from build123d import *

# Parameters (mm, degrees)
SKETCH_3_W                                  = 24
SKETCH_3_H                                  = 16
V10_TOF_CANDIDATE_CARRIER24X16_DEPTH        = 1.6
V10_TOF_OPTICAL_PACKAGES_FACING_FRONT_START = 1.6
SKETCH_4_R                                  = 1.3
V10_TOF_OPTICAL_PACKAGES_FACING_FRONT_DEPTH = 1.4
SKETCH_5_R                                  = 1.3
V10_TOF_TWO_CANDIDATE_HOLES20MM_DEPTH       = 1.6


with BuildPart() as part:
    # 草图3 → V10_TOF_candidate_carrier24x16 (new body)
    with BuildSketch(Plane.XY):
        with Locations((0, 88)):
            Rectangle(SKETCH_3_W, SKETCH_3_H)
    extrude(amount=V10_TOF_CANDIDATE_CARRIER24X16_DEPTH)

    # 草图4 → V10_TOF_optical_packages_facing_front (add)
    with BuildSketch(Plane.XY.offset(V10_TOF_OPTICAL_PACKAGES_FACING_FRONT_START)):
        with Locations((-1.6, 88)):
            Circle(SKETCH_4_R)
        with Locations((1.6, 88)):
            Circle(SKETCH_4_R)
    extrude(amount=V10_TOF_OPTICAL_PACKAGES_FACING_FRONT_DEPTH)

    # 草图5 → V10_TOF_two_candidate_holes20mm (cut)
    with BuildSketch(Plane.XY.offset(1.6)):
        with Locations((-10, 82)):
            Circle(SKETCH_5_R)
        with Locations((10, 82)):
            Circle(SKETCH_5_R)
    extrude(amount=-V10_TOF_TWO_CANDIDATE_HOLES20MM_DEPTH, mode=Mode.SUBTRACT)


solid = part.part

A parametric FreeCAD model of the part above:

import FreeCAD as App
import Part
import Sketcher
Q = App.Units.Quantity


def add_polygon(sketch, points):
    """Adds a closed chain of lines whose ends are joined by coincident constraints."""
    first, n = sketch.GeometryCount, len(points)
    for a, b in zip(points, points[1:] + points[:1]):
        sketch.addGeometry(Part.LineSegment(App.Vector(*a, 0), App.Vector(*b, 0)), False)
    for i in range(n):
        sketch.addConstraint(Sketcher.Constraint("Coincident", first + i, 2, first + (i + 1) % n, 1))

doc = App.newDocument("Part")
body = doc.addObject("PartDesign::Body", "Body")

# Sketch on XY plane
sketch1 = body.newObject("Sketcher::SketchObject", "Sketch")
sketch1.AttachmentSupport = (doc.getObject("XY_Plane"), [""])
sketch1.MapMode = "FlatFace"
add_polygon(sketch1, [(-12, 96), (-12, 80), (12, 80), (12, 96)])  # lines 0-3
sketch1.addConstraint(Sketcher.Constraint("Vertical", 0))
sketch1.addConstraint(Sketcher.Constraint("Horizontal", 1))
sketch1.addConstraint(Sketcher.Constraint("Vertical", 2))
sketch1.addConstraint(Sketcher.Constraint("Horizontal", 3))
sketch1.addConstraint(Sketcher.Constraint("DistanceX", 1, 1, 1, 2, Q("24 mm")))
sketch1.addConstraint(Sketcher.Constraint("DistanceY", 0, 2, 0, 1, Q("16 mm")))
sketch1.addConstraint(Sketcher.Constraint("DistanceX", 0, 2, -1, 1, Q("12 mm")))
sketch1.addConstraint(Sketcher.Constraint("DistanceY", -1, 1, 0, 2, Q("80 mm")))
pad1 = body.newObject("PartDesign::Pad", "Pad")
pad1.Profile = sketch1
pad1.Length = 1.6

# Sketch on XY plane
sketch2 = body.newObject("Sketcher::SketchObject", "Sketch001")
sketch2.AttachmentSupport = (doc.getObject("XY_Plane"), [""])
sketch2.MapMode = "FlatFace"
sketch2.AttachmentOffset = App.Placement(App.Vector(0, 0, 1.6), App.Rotation())
sketch2.addGeometry(Part.Circle(App.Vector(-1.6, 88, 0), App.Vector(0, 0, 1), 1.3), False)
sketch2.addGeometry(Part.Circle(App.Vector(1.6, 88, 0), App.Vector(0, 0, 1), 1.3), False)
sketch2.addConstraint(Sketcher.Constraint("Equal", 0, 1))
sketch2.addConstraint(Sketcher.Constraint("Symmetric", 0, 3, 1, 3, -2))
sketch2.addConstraint(Sketcher.Constraint("Diameter", 0, Q("2.6 mm")))
sketch2.addConstraint(Sketcher.Constraint("DistanceY", -1, 1, 0, 3, Q("88 mm")))
sketch2.addConstraint(Sketcher.Constraint("DistanceX", 0, 3, -1, 1, Q("1.6 mm")))
pad2 = body.newObject("PartDesign::Pad", "Pad001")
pad2.Profile = sketch2
pad2.Length = 1.4

# Sketch on XY plane
sketch3 = body.newObject("Sketcher::SketchObject", "Sketch002")
sketch3.AttachmentSupport = (doc.getObject("XY_Plane"), [""])
sketch3.MapMode = "FlatFace"
sketch3.AttachmentOffset = App.Placement(App.Vector(0, 0, 1.6), App.Rotation())
sketch3.addGeometry(Part.Circle(App.Vector(-10, 82, 0), App.Vector(0, 0, 1), 1.3), False)
sketch3.addGeometry(Part.Circle(App.Vector(10, 82, 0), App.Vector(0, 0, 1), 1.3), False)
sketch3.addConstraint(Sketcher.Constraint("Equal", 0, 1))
sketch3.addConstraint(Sketcher.Constraint("Symmetric", 0, 3, 1, 3, -2))
sketch3.addConstraint(Sketcher.Constraint("Diameter", 0, Q("2.6 mm")))
sketch3.addConstraint(Sketcher.Constraint("DistanceX", 0, 3, -1, 1, Q("10 mm")))
sketch3.addConstraint(Sketcher.Constraint("DistanceY", -1, 1, 0, 3, Q("82 mm")))
pocket1 = body.newObject("PartDesign::Pocket", "Pocket")
pocket1.Profile = sketch3
pocket1.Length = 1.6

doc.recompute()
